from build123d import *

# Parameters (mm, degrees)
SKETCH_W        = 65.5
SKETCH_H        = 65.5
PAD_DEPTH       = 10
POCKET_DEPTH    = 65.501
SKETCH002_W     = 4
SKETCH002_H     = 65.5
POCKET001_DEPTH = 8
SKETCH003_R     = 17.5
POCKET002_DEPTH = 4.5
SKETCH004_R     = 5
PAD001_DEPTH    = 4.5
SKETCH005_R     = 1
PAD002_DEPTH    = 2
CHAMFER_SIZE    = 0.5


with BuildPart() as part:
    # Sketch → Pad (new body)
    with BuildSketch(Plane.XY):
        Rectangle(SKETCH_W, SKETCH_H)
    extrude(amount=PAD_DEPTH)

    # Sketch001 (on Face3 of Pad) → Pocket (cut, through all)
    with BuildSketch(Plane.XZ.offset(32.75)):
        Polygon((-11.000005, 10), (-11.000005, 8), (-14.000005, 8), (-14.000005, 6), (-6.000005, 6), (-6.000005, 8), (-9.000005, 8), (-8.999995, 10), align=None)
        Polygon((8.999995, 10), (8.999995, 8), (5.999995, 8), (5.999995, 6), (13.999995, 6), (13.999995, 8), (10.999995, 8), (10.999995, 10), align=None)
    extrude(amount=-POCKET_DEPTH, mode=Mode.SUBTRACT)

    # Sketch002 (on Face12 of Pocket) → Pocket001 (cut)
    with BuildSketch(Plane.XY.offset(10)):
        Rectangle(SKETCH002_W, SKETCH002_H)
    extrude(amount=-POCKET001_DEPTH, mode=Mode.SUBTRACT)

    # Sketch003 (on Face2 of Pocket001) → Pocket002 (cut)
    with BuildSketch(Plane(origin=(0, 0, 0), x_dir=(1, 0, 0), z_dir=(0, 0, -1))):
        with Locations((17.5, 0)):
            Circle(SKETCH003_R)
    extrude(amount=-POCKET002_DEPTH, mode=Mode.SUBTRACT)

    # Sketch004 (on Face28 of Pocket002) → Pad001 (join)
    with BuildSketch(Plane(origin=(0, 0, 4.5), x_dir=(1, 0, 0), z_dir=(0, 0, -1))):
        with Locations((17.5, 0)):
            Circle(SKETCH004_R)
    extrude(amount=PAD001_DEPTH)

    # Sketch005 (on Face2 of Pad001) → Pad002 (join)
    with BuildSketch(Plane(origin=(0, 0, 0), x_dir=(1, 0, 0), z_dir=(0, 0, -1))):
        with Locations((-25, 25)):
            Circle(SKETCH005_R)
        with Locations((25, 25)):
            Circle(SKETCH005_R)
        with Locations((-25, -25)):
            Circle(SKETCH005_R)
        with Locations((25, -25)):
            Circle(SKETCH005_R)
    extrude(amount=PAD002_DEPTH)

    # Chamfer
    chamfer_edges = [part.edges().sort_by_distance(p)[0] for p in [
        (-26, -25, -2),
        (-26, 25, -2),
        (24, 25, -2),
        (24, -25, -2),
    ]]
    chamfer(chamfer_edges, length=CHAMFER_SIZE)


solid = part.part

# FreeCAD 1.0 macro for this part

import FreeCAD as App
import Part
import Sketcher


def edges_at(feature, points):
    """Names of the edges that pass closest to the given points."""
    edges = feature.Shape.Edges
    near = lambda p: min(range(len(edges)), key=lambda i: edges[i].distToShape(Part.Vertex(*p))[0])
    return sorted({f"Edge{near(p) + 1}" for p in points})


def add_polygon(sketch, points):
    """Adds a closed chain of lines whose ends are joined by coincident constraints."""
    first, n = sketch.GeometryCount, len(points)
    for a, b in zip(points, points[1:] + points[:1]):
        sketch.addGeometry(Part.LineSegment(App.Vector(*a, 0), App.Vector(*b, 0)), False)
    for i in range(n):
        sketch.addConstraint(Sketcher.Constraint("Coincident", first + i, 2, first + (i + 1) % n, 1))

doc = App.newDocument("Part")
body = doc.addObject("PartDesign::Body", "Body")

sketch1 = body.newObject("Sketcher::SketchObject", "Sketch")
sketch1.AttachmentSupport = (doc.getObject("XY_Plane"), [""])
sketch1.MapMode = "FlatFace"
add_polygon(sketch1, [(-33, 33), (-33, -33), (33, -33), (33, 33)])
sketch1.addConstraint(Sketcher.Constraint("Vertical", 0))
sketch1.addConstraint(Sketcher.Constraint("Horizontal", 1))
sketch1.addConstraint(Sketcher.Constraint("Vertical", 2))
sketch1.addConstraint(Sketcher.Constraint("Horizontal", 3))
sketch1.addConstraint(Sketcher.Constraint("Symmetric", 0, 2, 2, 2, -1, 1))
sketch1.addConstraint(Sketcher.Constraint("Equal", 3, 0))
sketch1.addConstraint(Sketcher.Constraint("DistanceX", 1, 1, 1, 2, 65.5))
pad1 = body.newObject("PartDesign::Pad", "Pad")
pad1.Profile = sketch1
pad1.Length = 10

sketch2 = body.newObject("Sketcher::SketchObject", "Sketch001")
sketch2.AttachmentSupport = (doc.getObject("XZ_Plane"), [""])
sketch2.MapMode = "FlatFace"
sketch2.AttachmentOffset = App.Placement(App.Vector(0, 0, 32.75), App.Rotation())
add_polygon(sketch2, [(-11, 10), (-11, 8), (-14, 8), (-14, 6), (-6, 6), (-6, 8), (-9, 8), (-9, 10)])
add_polygon(sketch2, [(9, 10), (9, 8), (6, 8), (6, 6), (14, 6), (14, 8), (11, 8), (11, 10)])
sketch2.addConstraint(Sketcher.Constraint("Vertical", 0))
sketch2.addConstraint(Sketcher.Constraint("Horizontal", 1))
sketch2.addConstraint(Sketcher.Constraint("Vertical", 2))
sketch2.addConstraint(Sketcher.Constraint("Horizontal", 3))
sketch2.addConstraint(Sketcher.Constraint("Vertical", 4))
sketch2.addConstraint(Sketcher.Constraint("Horizontal", 5))
sketch2.addConstraint(Sketcher.Constraint("Horizontal", 7))
sketch2.addConstraint(Sketcher.Constraint("Vertical", 8))
sketch2.addConstraint(Sketcher.Constraint("Horizontal", 9))
sketch2.addConstraint(Sketcher.Constraint("Vertical", 10))
sketch2.addConstraint(Sketcher.Constraint("Horizontal", 11))
sketch2.addConstraint(Sketcher.Constraint("Vertical", 12))
sketch2.addConstraint(Sketcher.Constraint("Horizontal", 13))
sketch2.addConstraint(Sketcher.Constraint("Vertical", 14))
sketch2.addConstraint(Sketcher.Constraint("Horizontal", 15))
sketch2.addConstraint(Sketcher.Constraint("Symmetric", 5, 2, 8, 2, -2))
sketch2.addConstraint(Sketcher.Constraint("Symmetric", 3, 2, 10, 2, -2))
sketch2.addConstraint(Sketcher.Constraint("Symmetric", 1, 2, 12, 2, -2))
sketch2.addConstraint(Sketcher.Constraint("Symmetric", 7, 2, 14, 2, -2))
sketch2.addConstraint(Sketcher.Constraint("Horizontal", 1, 2, 4, 2))
sketch2.addConstraint(Sketcher.Constraint("Equal", 1, 5))
sketch2.addConstraint(Sketcher.Constraint("Equal", 15, 0))
sketch2.addConstraint(Sketcher.Constraint("Equal", 0, 2))
sketch2.addConstraint(Sketcher.Constraint("DistanceX", 1, 2, 1, 1, 3.0))
sketch2.addConstraint(Sketcher.Constraint("DistanceX", 3, 1, 3, 2, 8.0))
sketch2.addConstraint(Sketcher.Constraint("DistanceY", -1, 1, 0, 2, 8.0))
sketch2.addConstraint(Sketcher.Constraint("DistanceX", 4, 2, 8, 2, 15.0))
sketch2.addConstraint(Sketcher.Constraint("DistanceX", 7, 2, 7, 1, 2.00001))
pocket1 = body.newObject("PartDesign::Pocket", "Pocket")
pocket1.Profile = sketch2
pocket1.Type = "ThroughAll"

sketch3 = body.newObject("Sketcher::SketchObject", "Sketch002")
sketch3.AttachmentSupport = (doc.getObject("XY_Plane"), [""])
sketch3.MapMode = "FlatFace"
sketch3.AttachmentOffset = App.Placement(App.Vector(0, 0, 10), App.Rotation())
add_polygon(sketch3, [(-2, 32.8), (-2, -32.8), (2, -32.8), (2, 32.8)])
sketch3.addConstraint(Sketcher.Constraint("Vertical", 0))
sketch3.addConstraint(Sketcher.Constraint("Horizontal", 1))
sketch3.addConstraint(Sketcher.Constraint("Vertical", 2))
sketch3.addConstraint(Sketcher.Constraint("Horizontal", 3))
sketch3.addConstraint(Sketcher.Constraint("Symmetric", 0, 2, 2, 2, -1, 1))
sketch3.addConstraint(Sketcher.Constraint("DistanceX", 1, 1, 1, 2, 4.0))
sketch3.addConstraint(Sketcher.Constraint("DistanceY", 0, 2, 0, 1, 65.5))
pocket2 = body.newObject("PartDesign::Pocket", "Pocket001")
pocket2.Profile = sketch3
pocket2.Length = 8

sketch4 = body.newObject("Sketcher::SketchObject", "Sketch003")
sketch4.AttachmentSupport = (doc.getObject("XY_Plane"), [""])
sketch4.MapMode = "FlatFace"
sketch4.addGeometry(Part.Circle(App.Vector(18, 0, 0), App.Vector(0, 0, 1), 18), False)
sketch4.addConstraint(Sketcher.Constraint("PointOnObject", 0, 3, -1))
sketch4.addConstraint(Sketcher.Constraint("Diameter", 0, 35.0))
sketch4.addConstraint(Sketcher.Constraint("DistanceX", -1, 1, 0, 3, 17.5))
pocket3 = body.newObject("PartDesign::Pocket", "Pocket002")
pocket3.Profile = sketch4
pocket3.Length = 4.5
pocket3.Reversed = True

sketch5 = body.newObject("Sketcher::SketchObject", "Sketch004")
sketch5.AttachmentSupport = (doc.getObject("XY_Plane"), [""])
sketch5.MapMode = "FlatFace"
sketch5.AttachmentOffset = App.Placement(App.Vector(0, 0, 4.5), App.Rotation())
sketch5.addGeometry(Part.Circle(App.Vector(18, 0, 0), App.Vector(0, 0, 1), 5), False)
sketch5.addConstraint(Sketcher.Constraint("PointOnObject", 0, 3, -1))
sketch5.addConstraint(Sketcher.Constraint("Diameter", 0, 10.0))
sketch5.addConstraint(Sketcher.Constraint("DistanceX", -1, 1, 0, 3, 17.5))
pad2 = body.newObject("PartDesign::Pad", "Pad001")
pad2.Profile = sketch5
pad2.Length = 4.5
pad2.Reversed = True

sketch6 = body.newObject("Sketcher::SketchObject", "Sketch005")
sketch6.AttachmentSupport = (doc.getObject("XY_Plane"), [""])
sketch6.MapMode = "FlatFace"
sketch6.addGeometry(Part.Circle(App.Vector(-25, -25, 0), App.Vector(0, 0, 1), 1), False)
sketch6.addGeometry(Part.Circle(App.Vector(25, -25, 0), App.Vector(0, 0, 1), 1), False)
sketch6.addGeometry(Part.Circle(App.Vector(-25, 25, 0), App.Vector(0, 0, 1), 1), False)
sketch6.addGeometry(Part.Circle(App.Vector(25, 25, 0), App.Vector(0, 0, 1), 1), False)
sketch6.addConstraint(Sketcher.Constraint("Equal", 0, 1))
sketch6.addConstraint(Sketcher.Constraint("Equal", 1, 2))
sketch6.addConstraint(Sketcher.Constraint("Equal", 2, 3))
sketch6.addConstraint(Sketcher.Constraint("Symmetric", 1, 3, 2, 3, -1, 1))
sketch6.addConstraint(Sketcher.Constraint("Symmetric", 0, 3, 3, 3, -1, 1))
sketch6.addConstraint(Sketcher.Constraint("Symmetric", 0, 3, 1, 3, -2))
sketch6.addConstraint(Sketcher.Constraint("Diameter", 0, 2.0))
sketch6.addConstraint(Sketcher.Constraint("DistanceX", 0, 3, -1, 1, 25.0))
sketch6.addConstraint(Sketcher.Constraint("DistanceY", 0, 3, -1, 1, 25.0))
pad3 = body.newObject("PartDesign::Pad", "Pad002")
pad3.Profile = sketch6
pad3.Length = 2
pad3.Reversed = True
doc.recompute()

chamfer = body.newObject("PartDesign::Chamfer", "Chamfer")
chamfer.Base = (pad3, edges_at(pad3, [
    (-26, -25, -2),
    (-26, 25, -2),
    (24, 25, -2),
    (24, -25, -2),
]))
chamfer.Size = 0.5

doc.recompute()
